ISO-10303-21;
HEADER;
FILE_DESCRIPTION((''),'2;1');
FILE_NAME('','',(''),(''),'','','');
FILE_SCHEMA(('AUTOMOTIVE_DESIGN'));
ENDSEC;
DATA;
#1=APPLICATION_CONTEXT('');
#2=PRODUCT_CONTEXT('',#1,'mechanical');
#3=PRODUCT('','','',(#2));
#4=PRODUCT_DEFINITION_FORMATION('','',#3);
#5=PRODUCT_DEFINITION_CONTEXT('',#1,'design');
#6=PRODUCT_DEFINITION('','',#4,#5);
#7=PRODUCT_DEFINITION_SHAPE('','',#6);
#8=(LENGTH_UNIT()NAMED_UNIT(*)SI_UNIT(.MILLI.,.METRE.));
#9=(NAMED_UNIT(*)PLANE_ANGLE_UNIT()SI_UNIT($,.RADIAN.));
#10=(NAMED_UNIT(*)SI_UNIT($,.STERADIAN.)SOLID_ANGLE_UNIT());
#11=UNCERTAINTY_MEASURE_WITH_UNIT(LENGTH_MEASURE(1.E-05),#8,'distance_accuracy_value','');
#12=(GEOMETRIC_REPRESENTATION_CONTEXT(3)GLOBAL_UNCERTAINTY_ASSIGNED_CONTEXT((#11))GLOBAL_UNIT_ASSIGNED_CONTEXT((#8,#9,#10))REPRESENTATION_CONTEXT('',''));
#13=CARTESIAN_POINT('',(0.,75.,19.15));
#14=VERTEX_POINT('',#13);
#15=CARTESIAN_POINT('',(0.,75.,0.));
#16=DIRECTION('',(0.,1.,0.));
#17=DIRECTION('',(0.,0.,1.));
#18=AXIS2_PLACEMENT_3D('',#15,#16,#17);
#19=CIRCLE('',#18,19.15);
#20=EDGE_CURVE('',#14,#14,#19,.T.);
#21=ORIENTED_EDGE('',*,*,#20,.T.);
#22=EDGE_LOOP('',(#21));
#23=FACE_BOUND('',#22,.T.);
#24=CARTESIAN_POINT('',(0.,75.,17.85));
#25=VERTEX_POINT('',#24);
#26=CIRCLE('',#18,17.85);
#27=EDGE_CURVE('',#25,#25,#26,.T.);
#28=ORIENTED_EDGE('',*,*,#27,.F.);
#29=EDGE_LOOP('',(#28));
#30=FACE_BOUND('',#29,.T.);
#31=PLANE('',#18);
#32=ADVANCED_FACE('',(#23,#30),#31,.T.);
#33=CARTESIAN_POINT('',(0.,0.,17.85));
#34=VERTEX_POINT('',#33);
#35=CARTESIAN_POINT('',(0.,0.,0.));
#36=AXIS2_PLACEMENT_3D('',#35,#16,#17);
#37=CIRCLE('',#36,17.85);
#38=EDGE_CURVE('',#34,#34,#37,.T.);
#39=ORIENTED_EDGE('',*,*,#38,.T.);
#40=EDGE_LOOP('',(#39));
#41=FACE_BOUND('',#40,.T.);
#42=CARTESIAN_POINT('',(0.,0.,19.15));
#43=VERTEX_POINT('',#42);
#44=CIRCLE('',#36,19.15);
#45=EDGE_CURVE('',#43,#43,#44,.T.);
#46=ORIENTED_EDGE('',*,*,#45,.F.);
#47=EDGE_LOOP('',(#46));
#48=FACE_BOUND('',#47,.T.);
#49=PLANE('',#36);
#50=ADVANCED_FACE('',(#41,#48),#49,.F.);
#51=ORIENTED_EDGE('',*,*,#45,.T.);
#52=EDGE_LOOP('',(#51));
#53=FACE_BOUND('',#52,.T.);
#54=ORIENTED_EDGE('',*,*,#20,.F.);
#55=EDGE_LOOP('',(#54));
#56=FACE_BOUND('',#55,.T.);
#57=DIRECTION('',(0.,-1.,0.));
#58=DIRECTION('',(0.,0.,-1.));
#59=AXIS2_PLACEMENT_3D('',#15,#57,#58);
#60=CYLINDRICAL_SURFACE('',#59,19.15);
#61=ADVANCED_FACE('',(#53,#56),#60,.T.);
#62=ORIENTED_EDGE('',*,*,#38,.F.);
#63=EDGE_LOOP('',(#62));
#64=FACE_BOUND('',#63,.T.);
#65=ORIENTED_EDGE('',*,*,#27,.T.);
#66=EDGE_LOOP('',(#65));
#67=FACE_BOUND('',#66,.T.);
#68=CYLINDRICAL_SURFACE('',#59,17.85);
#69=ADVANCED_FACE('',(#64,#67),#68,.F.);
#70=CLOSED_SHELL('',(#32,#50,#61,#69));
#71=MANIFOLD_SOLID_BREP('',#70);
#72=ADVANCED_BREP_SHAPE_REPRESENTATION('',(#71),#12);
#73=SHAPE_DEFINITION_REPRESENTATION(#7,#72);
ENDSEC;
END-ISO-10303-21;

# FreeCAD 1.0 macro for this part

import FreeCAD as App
import Part
import Sketcher

V = App.Vector
Q = App.Units.Quantity

doc = App.newDocument("Part")
body = doc.addObject("PartDesign::Body", "Body")

# Sketch on XZ plane
sketch1 = doc.addObject("Sketcher::SketchObject", "Sketch")
body.addObject(sketch1)
sketch1.AttachmentSupport = (doc.XZ_Plane, [""])
sketch1.MapMode = "FlatFace"
sketch1.addGeometry(Part.Circle(V(0, 0, 0), V(0, 0, 1), 19), False)
sketch1.addGeometry(Part.Circle(V(0, 0, 0), V(0, 0, 1), 18), False)
sketch1.addConstraint(Sketcher.Constraint("Coincident", 0, 3, -1, 1))
sketch1.addConstraint(Sketcher.Constraint("Coincident", 1, 3, -1, 1))
sketch1.addConstraint(Sketcher.Constraint("Diameter", 0, Q("38.3 mm")))
sketch1.addConstraint(Sketcher.Constraint("Diameter", 1, Q("35.7 mm")))
pad1 = doc.addObject("PartDesign::Pad", "Pad")
body.addObject(pad1)
pad1.Profile = sketch1
pad1.Length = 75
pad1.Reversed = True

doc.recompute()
